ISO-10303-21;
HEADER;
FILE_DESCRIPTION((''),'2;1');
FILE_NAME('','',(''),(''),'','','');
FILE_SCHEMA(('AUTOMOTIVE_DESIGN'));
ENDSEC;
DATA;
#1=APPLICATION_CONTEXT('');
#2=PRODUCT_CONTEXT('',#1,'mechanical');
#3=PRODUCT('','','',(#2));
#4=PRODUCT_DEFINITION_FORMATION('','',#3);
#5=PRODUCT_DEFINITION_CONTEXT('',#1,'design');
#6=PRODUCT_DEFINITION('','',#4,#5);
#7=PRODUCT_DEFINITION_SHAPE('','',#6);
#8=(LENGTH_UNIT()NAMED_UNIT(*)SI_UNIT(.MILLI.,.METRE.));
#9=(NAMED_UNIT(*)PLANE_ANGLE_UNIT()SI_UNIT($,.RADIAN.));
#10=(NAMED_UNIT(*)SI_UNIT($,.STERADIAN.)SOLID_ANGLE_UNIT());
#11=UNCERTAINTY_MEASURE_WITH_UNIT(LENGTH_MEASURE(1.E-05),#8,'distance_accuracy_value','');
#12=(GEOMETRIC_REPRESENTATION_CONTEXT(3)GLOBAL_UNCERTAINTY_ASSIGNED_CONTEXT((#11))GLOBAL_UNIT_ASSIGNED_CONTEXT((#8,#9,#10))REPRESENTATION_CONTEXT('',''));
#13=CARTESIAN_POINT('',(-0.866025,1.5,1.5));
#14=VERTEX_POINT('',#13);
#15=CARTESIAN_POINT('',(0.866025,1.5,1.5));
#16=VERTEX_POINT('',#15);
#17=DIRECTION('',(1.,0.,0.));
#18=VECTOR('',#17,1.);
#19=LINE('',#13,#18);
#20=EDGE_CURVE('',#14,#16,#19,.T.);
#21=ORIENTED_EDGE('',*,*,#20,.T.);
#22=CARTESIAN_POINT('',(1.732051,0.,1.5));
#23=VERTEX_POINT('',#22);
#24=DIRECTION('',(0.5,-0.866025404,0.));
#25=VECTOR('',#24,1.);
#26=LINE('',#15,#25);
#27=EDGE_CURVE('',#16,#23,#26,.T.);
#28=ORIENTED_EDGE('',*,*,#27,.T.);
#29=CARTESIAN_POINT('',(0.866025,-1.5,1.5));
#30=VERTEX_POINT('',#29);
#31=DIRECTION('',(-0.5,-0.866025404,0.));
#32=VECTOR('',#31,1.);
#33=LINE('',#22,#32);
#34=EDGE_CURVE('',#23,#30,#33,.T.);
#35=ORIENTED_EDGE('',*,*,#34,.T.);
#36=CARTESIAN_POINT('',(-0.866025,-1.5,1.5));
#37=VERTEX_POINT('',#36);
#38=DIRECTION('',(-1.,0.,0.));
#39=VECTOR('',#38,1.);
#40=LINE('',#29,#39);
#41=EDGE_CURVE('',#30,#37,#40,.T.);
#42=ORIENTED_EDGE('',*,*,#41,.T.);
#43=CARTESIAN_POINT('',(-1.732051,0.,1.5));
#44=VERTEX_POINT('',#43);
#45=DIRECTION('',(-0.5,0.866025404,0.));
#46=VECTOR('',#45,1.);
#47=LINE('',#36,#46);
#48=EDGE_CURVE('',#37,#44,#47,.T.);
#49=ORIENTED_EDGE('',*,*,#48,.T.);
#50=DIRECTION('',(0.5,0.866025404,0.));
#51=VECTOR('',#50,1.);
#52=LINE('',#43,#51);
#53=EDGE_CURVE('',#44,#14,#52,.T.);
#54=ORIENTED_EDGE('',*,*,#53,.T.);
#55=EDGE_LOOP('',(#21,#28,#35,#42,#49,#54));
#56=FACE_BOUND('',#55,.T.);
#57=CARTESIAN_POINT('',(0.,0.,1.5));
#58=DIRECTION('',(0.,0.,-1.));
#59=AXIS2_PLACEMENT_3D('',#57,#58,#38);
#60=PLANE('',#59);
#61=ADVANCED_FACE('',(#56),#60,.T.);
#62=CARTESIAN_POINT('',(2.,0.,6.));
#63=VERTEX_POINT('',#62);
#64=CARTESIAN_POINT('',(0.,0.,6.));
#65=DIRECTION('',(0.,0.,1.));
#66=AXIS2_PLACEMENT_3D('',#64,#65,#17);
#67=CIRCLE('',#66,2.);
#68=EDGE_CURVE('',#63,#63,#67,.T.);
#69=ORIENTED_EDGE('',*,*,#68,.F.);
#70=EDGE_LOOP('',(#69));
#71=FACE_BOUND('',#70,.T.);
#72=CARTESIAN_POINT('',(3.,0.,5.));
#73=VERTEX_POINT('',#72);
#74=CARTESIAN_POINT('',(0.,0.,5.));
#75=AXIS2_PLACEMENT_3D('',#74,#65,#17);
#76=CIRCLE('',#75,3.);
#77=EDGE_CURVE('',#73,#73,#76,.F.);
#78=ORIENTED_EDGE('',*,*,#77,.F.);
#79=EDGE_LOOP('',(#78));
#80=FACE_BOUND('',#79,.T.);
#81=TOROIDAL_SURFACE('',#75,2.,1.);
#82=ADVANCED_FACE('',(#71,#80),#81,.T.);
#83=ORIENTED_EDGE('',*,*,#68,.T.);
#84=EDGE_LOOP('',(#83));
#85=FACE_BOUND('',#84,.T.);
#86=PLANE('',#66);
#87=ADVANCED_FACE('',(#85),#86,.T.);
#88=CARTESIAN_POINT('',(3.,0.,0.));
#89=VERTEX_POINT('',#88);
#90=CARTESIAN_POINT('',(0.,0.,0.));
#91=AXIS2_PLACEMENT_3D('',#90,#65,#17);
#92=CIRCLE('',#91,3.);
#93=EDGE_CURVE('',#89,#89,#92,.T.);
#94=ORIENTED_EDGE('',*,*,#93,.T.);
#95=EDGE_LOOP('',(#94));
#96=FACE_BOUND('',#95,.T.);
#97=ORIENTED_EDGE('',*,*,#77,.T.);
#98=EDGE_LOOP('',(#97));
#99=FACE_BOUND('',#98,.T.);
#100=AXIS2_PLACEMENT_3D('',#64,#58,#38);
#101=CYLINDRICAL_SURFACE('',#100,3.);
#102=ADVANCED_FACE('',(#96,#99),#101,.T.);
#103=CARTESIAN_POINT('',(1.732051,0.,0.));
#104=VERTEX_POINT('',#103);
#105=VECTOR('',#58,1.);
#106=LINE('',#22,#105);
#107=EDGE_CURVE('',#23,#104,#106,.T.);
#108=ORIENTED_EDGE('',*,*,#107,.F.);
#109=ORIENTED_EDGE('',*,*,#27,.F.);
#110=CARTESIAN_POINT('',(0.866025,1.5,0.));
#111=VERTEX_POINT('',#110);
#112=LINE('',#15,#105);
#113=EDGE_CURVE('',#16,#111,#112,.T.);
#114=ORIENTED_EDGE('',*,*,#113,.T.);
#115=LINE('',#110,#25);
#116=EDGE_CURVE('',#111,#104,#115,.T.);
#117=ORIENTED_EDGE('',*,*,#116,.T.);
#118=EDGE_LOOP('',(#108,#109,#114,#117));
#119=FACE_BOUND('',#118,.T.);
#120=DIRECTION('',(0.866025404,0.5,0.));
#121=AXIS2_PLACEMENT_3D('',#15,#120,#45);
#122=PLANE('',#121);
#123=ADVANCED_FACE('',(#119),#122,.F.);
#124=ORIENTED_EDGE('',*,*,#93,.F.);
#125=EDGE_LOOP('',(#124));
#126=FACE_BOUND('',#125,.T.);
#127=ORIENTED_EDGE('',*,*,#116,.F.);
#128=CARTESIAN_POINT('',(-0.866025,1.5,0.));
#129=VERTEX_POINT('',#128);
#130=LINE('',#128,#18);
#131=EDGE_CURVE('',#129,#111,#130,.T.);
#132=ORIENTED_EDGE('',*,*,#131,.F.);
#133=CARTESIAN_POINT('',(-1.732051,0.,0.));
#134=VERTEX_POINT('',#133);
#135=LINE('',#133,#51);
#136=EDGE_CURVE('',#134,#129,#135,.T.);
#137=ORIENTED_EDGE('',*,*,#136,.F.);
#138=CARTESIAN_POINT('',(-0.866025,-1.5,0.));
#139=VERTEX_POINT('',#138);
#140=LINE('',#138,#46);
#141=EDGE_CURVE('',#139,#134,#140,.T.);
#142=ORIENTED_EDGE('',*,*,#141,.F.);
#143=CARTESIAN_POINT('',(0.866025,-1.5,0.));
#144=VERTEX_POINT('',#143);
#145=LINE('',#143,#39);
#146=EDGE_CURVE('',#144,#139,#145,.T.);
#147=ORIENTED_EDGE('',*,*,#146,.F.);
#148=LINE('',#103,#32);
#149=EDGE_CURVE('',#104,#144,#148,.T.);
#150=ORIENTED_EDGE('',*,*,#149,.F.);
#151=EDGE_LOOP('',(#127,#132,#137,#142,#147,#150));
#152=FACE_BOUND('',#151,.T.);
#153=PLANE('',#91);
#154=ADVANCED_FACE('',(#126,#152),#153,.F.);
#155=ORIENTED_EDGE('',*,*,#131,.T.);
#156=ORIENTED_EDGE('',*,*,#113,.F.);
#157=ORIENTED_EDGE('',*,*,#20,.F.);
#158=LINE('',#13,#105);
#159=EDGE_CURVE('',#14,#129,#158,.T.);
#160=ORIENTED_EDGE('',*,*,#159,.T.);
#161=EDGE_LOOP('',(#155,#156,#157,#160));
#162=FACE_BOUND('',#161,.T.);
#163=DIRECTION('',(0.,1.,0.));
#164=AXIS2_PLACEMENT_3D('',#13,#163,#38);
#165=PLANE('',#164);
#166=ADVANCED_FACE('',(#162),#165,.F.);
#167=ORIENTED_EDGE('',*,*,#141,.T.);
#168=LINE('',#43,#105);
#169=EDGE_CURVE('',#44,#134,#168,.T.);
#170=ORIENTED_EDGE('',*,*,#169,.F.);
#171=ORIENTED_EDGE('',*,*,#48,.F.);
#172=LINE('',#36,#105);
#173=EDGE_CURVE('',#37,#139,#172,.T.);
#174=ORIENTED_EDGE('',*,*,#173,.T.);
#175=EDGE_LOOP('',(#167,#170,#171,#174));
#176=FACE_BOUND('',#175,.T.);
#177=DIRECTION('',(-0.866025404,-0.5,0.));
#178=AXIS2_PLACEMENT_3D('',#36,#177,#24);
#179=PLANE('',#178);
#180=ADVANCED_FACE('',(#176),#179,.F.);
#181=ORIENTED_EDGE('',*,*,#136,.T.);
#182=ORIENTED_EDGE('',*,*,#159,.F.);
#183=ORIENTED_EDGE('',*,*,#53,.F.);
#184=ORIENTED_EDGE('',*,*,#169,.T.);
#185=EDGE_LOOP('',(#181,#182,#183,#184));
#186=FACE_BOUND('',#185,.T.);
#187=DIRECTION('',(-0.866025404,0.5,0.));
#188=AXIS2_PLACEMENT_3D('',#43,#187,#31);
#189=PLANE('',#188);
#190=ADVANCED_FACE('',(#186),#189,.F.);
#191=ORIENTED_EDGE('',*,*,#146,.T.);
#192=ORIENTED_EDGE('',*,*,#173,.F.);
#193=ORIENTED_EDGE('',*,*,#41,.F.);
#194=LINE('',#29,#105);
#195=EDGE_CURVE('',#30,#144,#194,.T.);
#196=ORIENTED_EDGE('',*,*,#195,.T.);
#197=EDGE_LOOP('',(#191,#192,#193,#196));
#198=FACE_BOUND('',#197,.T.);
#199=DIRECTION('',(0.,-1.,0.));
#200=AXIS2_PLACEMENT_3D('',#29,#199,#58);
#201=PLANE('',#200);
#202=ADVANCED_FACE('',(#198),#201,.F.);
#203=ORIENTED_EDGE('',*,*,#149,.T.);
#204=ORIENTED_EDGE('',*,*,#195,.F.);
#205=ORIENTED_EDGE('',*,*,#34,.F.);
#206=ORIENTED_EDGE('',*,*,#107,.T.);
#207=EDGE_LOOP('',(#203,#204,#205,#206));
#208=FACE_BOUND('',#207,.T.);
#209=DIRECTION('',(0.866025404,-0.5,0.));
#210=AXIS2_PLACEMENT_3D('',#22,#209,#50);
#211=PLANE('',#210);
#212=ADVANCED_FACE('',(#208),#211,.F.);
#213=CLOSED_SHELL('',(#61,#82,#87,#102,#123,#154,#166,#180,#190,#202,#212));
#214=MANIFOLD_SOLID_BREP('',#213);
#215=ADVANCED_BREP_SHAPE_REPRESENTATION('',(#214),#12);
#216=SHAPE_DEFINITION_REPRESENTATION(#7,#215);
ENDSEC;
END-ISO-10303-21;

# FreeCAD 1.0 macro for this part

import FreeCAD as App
import Part
import Sketcher
from FreeCAD import Vector
Q = App.Units.Quantity


def edges_at(feature, points):
    """Names of the edges that pass closest to the given points."""
    edges = feature.Shape.Edges
    near = lambda p: min(range(len(edges)), key=lambda i: edges[i].distToShape(Part.Vertex(*p))[0])
    return sorted({f"Edge{near(p) + 1}" for p in points})

doc = App.newDocument("Part")
body = doc.addObject("PartDesign::Body", "Body")

# Sketch on XY plane
sketch1 = body.newObject("Sketcher::SketchObject", "Sketch")
sketch1.AttachmentSupport = (doc.getObject("XY_Plane"), [""])
sketch1.MapMode = "FlatFace"
sketch1.addGeometry(Part.Circle(Vector(0, 0, 0), Vector(0, 0, 1), 3), False)
sketch1.addConstraint([
    Sketcher.Constraint("Coincident", 0, 3, -1, 1),
    Sketcher.Constraint("Diameter", 0, Q("6 mm")),
])
pad1 = body.newObject("PartDesign::Pad", "Pad")
pad1.Profile = sketch1
pad1.Length = 6
doc.recompute()

fillet = body.newObject("PartDesign::Fillet", "Fillet")
fillet.Base = (pad1, edges_at(pad1, [(-3, 0, 6)]))
fillet.Radius = 1

# Sketch on XY plane
sketch2 = body.newObject("Sketcher::SketchObject", "Sketch001")
sketch2.AttachmentSupport = (doc.getObject("XY_Plane"), [""])
sketch2.MapMode = "FlatFace"
sketch2.addGeometry([
    Part.LineSegment(Vector(-1.732051, 0, 0), Vector(-0.866025, 1.5, 0)),  # 0
    Part.LineSegment(Vector(-0.866025, 1.5, 0), Vector(0.866025, 1.5, 0)),  # 1
    Part.LineSegment(Vector(0.866025, 1.5, 0), Vector(1.732051, 0, 0)),  # 2
    Part.LineSegment(Vector(1.732051, 0, 0), Vector(0.866025, -1.5, 0)),  # 3
    Part.LineSegment(Vector(0.866025, -1.5, 0), Vector(-0.866025, -1.5, 0)),  # 4
    Part.LineSegment(Vector(-0.866025, -1.5, 0), Vector(-1.732051, 0, 0)),  # 5
], False)
sketch2.addConstraint([
    Sketcher.Constraint("Coincident", 0, 2, 1, 1),
    Sketcher.Constraint("Coincident", 1, 2, 2, 1),
    Sketcher.Constraint("Coincident", 2, 2, 3, 1),
    Sketcher.Constraint("Coincident", 3, 2, 4, 1),
    Sketcher.Constraint("Coincident", 4, 2, 5, 1),
    Sketcher.Constraint("Coincident", 5, 2, 0, 1),
    Sketcher.Constraint("Horizontal", 1),
    Sketcher.Constraint("Horizontal", 4),
    Sketcher.Constraint("Symmetric", 0, 2, 3, 2, -1, 1),
    Sketcher.Constraint("Symmetric", 2, 2, 5, 2, -1, 1),
    Sketcher.Constraint("PointOnObject", 2, 2, -1),
    Sketcher.Constraint("Parallel", 2, 5),
    Sketcher.Constraint("Vertical", 1, 2, 3, 2),
    Sketcher.Constraint("Angle", 0, Q("60 deg")),
    Sketcher.Constraint("DistanceY", 3, 2, 1, 2, Q("3 mm")),
    Sketcher.Constraint("DistanceX", 1, 1, 1, 2, Q("1.732051 mm")),
])
pocket1 = body.newObject("PartDesign::Pocket", "Pocket")
pocket1.Profile = sketch2
pocket1.Length = 1.5
pocket1.Reversed = True

doc.recompute()
